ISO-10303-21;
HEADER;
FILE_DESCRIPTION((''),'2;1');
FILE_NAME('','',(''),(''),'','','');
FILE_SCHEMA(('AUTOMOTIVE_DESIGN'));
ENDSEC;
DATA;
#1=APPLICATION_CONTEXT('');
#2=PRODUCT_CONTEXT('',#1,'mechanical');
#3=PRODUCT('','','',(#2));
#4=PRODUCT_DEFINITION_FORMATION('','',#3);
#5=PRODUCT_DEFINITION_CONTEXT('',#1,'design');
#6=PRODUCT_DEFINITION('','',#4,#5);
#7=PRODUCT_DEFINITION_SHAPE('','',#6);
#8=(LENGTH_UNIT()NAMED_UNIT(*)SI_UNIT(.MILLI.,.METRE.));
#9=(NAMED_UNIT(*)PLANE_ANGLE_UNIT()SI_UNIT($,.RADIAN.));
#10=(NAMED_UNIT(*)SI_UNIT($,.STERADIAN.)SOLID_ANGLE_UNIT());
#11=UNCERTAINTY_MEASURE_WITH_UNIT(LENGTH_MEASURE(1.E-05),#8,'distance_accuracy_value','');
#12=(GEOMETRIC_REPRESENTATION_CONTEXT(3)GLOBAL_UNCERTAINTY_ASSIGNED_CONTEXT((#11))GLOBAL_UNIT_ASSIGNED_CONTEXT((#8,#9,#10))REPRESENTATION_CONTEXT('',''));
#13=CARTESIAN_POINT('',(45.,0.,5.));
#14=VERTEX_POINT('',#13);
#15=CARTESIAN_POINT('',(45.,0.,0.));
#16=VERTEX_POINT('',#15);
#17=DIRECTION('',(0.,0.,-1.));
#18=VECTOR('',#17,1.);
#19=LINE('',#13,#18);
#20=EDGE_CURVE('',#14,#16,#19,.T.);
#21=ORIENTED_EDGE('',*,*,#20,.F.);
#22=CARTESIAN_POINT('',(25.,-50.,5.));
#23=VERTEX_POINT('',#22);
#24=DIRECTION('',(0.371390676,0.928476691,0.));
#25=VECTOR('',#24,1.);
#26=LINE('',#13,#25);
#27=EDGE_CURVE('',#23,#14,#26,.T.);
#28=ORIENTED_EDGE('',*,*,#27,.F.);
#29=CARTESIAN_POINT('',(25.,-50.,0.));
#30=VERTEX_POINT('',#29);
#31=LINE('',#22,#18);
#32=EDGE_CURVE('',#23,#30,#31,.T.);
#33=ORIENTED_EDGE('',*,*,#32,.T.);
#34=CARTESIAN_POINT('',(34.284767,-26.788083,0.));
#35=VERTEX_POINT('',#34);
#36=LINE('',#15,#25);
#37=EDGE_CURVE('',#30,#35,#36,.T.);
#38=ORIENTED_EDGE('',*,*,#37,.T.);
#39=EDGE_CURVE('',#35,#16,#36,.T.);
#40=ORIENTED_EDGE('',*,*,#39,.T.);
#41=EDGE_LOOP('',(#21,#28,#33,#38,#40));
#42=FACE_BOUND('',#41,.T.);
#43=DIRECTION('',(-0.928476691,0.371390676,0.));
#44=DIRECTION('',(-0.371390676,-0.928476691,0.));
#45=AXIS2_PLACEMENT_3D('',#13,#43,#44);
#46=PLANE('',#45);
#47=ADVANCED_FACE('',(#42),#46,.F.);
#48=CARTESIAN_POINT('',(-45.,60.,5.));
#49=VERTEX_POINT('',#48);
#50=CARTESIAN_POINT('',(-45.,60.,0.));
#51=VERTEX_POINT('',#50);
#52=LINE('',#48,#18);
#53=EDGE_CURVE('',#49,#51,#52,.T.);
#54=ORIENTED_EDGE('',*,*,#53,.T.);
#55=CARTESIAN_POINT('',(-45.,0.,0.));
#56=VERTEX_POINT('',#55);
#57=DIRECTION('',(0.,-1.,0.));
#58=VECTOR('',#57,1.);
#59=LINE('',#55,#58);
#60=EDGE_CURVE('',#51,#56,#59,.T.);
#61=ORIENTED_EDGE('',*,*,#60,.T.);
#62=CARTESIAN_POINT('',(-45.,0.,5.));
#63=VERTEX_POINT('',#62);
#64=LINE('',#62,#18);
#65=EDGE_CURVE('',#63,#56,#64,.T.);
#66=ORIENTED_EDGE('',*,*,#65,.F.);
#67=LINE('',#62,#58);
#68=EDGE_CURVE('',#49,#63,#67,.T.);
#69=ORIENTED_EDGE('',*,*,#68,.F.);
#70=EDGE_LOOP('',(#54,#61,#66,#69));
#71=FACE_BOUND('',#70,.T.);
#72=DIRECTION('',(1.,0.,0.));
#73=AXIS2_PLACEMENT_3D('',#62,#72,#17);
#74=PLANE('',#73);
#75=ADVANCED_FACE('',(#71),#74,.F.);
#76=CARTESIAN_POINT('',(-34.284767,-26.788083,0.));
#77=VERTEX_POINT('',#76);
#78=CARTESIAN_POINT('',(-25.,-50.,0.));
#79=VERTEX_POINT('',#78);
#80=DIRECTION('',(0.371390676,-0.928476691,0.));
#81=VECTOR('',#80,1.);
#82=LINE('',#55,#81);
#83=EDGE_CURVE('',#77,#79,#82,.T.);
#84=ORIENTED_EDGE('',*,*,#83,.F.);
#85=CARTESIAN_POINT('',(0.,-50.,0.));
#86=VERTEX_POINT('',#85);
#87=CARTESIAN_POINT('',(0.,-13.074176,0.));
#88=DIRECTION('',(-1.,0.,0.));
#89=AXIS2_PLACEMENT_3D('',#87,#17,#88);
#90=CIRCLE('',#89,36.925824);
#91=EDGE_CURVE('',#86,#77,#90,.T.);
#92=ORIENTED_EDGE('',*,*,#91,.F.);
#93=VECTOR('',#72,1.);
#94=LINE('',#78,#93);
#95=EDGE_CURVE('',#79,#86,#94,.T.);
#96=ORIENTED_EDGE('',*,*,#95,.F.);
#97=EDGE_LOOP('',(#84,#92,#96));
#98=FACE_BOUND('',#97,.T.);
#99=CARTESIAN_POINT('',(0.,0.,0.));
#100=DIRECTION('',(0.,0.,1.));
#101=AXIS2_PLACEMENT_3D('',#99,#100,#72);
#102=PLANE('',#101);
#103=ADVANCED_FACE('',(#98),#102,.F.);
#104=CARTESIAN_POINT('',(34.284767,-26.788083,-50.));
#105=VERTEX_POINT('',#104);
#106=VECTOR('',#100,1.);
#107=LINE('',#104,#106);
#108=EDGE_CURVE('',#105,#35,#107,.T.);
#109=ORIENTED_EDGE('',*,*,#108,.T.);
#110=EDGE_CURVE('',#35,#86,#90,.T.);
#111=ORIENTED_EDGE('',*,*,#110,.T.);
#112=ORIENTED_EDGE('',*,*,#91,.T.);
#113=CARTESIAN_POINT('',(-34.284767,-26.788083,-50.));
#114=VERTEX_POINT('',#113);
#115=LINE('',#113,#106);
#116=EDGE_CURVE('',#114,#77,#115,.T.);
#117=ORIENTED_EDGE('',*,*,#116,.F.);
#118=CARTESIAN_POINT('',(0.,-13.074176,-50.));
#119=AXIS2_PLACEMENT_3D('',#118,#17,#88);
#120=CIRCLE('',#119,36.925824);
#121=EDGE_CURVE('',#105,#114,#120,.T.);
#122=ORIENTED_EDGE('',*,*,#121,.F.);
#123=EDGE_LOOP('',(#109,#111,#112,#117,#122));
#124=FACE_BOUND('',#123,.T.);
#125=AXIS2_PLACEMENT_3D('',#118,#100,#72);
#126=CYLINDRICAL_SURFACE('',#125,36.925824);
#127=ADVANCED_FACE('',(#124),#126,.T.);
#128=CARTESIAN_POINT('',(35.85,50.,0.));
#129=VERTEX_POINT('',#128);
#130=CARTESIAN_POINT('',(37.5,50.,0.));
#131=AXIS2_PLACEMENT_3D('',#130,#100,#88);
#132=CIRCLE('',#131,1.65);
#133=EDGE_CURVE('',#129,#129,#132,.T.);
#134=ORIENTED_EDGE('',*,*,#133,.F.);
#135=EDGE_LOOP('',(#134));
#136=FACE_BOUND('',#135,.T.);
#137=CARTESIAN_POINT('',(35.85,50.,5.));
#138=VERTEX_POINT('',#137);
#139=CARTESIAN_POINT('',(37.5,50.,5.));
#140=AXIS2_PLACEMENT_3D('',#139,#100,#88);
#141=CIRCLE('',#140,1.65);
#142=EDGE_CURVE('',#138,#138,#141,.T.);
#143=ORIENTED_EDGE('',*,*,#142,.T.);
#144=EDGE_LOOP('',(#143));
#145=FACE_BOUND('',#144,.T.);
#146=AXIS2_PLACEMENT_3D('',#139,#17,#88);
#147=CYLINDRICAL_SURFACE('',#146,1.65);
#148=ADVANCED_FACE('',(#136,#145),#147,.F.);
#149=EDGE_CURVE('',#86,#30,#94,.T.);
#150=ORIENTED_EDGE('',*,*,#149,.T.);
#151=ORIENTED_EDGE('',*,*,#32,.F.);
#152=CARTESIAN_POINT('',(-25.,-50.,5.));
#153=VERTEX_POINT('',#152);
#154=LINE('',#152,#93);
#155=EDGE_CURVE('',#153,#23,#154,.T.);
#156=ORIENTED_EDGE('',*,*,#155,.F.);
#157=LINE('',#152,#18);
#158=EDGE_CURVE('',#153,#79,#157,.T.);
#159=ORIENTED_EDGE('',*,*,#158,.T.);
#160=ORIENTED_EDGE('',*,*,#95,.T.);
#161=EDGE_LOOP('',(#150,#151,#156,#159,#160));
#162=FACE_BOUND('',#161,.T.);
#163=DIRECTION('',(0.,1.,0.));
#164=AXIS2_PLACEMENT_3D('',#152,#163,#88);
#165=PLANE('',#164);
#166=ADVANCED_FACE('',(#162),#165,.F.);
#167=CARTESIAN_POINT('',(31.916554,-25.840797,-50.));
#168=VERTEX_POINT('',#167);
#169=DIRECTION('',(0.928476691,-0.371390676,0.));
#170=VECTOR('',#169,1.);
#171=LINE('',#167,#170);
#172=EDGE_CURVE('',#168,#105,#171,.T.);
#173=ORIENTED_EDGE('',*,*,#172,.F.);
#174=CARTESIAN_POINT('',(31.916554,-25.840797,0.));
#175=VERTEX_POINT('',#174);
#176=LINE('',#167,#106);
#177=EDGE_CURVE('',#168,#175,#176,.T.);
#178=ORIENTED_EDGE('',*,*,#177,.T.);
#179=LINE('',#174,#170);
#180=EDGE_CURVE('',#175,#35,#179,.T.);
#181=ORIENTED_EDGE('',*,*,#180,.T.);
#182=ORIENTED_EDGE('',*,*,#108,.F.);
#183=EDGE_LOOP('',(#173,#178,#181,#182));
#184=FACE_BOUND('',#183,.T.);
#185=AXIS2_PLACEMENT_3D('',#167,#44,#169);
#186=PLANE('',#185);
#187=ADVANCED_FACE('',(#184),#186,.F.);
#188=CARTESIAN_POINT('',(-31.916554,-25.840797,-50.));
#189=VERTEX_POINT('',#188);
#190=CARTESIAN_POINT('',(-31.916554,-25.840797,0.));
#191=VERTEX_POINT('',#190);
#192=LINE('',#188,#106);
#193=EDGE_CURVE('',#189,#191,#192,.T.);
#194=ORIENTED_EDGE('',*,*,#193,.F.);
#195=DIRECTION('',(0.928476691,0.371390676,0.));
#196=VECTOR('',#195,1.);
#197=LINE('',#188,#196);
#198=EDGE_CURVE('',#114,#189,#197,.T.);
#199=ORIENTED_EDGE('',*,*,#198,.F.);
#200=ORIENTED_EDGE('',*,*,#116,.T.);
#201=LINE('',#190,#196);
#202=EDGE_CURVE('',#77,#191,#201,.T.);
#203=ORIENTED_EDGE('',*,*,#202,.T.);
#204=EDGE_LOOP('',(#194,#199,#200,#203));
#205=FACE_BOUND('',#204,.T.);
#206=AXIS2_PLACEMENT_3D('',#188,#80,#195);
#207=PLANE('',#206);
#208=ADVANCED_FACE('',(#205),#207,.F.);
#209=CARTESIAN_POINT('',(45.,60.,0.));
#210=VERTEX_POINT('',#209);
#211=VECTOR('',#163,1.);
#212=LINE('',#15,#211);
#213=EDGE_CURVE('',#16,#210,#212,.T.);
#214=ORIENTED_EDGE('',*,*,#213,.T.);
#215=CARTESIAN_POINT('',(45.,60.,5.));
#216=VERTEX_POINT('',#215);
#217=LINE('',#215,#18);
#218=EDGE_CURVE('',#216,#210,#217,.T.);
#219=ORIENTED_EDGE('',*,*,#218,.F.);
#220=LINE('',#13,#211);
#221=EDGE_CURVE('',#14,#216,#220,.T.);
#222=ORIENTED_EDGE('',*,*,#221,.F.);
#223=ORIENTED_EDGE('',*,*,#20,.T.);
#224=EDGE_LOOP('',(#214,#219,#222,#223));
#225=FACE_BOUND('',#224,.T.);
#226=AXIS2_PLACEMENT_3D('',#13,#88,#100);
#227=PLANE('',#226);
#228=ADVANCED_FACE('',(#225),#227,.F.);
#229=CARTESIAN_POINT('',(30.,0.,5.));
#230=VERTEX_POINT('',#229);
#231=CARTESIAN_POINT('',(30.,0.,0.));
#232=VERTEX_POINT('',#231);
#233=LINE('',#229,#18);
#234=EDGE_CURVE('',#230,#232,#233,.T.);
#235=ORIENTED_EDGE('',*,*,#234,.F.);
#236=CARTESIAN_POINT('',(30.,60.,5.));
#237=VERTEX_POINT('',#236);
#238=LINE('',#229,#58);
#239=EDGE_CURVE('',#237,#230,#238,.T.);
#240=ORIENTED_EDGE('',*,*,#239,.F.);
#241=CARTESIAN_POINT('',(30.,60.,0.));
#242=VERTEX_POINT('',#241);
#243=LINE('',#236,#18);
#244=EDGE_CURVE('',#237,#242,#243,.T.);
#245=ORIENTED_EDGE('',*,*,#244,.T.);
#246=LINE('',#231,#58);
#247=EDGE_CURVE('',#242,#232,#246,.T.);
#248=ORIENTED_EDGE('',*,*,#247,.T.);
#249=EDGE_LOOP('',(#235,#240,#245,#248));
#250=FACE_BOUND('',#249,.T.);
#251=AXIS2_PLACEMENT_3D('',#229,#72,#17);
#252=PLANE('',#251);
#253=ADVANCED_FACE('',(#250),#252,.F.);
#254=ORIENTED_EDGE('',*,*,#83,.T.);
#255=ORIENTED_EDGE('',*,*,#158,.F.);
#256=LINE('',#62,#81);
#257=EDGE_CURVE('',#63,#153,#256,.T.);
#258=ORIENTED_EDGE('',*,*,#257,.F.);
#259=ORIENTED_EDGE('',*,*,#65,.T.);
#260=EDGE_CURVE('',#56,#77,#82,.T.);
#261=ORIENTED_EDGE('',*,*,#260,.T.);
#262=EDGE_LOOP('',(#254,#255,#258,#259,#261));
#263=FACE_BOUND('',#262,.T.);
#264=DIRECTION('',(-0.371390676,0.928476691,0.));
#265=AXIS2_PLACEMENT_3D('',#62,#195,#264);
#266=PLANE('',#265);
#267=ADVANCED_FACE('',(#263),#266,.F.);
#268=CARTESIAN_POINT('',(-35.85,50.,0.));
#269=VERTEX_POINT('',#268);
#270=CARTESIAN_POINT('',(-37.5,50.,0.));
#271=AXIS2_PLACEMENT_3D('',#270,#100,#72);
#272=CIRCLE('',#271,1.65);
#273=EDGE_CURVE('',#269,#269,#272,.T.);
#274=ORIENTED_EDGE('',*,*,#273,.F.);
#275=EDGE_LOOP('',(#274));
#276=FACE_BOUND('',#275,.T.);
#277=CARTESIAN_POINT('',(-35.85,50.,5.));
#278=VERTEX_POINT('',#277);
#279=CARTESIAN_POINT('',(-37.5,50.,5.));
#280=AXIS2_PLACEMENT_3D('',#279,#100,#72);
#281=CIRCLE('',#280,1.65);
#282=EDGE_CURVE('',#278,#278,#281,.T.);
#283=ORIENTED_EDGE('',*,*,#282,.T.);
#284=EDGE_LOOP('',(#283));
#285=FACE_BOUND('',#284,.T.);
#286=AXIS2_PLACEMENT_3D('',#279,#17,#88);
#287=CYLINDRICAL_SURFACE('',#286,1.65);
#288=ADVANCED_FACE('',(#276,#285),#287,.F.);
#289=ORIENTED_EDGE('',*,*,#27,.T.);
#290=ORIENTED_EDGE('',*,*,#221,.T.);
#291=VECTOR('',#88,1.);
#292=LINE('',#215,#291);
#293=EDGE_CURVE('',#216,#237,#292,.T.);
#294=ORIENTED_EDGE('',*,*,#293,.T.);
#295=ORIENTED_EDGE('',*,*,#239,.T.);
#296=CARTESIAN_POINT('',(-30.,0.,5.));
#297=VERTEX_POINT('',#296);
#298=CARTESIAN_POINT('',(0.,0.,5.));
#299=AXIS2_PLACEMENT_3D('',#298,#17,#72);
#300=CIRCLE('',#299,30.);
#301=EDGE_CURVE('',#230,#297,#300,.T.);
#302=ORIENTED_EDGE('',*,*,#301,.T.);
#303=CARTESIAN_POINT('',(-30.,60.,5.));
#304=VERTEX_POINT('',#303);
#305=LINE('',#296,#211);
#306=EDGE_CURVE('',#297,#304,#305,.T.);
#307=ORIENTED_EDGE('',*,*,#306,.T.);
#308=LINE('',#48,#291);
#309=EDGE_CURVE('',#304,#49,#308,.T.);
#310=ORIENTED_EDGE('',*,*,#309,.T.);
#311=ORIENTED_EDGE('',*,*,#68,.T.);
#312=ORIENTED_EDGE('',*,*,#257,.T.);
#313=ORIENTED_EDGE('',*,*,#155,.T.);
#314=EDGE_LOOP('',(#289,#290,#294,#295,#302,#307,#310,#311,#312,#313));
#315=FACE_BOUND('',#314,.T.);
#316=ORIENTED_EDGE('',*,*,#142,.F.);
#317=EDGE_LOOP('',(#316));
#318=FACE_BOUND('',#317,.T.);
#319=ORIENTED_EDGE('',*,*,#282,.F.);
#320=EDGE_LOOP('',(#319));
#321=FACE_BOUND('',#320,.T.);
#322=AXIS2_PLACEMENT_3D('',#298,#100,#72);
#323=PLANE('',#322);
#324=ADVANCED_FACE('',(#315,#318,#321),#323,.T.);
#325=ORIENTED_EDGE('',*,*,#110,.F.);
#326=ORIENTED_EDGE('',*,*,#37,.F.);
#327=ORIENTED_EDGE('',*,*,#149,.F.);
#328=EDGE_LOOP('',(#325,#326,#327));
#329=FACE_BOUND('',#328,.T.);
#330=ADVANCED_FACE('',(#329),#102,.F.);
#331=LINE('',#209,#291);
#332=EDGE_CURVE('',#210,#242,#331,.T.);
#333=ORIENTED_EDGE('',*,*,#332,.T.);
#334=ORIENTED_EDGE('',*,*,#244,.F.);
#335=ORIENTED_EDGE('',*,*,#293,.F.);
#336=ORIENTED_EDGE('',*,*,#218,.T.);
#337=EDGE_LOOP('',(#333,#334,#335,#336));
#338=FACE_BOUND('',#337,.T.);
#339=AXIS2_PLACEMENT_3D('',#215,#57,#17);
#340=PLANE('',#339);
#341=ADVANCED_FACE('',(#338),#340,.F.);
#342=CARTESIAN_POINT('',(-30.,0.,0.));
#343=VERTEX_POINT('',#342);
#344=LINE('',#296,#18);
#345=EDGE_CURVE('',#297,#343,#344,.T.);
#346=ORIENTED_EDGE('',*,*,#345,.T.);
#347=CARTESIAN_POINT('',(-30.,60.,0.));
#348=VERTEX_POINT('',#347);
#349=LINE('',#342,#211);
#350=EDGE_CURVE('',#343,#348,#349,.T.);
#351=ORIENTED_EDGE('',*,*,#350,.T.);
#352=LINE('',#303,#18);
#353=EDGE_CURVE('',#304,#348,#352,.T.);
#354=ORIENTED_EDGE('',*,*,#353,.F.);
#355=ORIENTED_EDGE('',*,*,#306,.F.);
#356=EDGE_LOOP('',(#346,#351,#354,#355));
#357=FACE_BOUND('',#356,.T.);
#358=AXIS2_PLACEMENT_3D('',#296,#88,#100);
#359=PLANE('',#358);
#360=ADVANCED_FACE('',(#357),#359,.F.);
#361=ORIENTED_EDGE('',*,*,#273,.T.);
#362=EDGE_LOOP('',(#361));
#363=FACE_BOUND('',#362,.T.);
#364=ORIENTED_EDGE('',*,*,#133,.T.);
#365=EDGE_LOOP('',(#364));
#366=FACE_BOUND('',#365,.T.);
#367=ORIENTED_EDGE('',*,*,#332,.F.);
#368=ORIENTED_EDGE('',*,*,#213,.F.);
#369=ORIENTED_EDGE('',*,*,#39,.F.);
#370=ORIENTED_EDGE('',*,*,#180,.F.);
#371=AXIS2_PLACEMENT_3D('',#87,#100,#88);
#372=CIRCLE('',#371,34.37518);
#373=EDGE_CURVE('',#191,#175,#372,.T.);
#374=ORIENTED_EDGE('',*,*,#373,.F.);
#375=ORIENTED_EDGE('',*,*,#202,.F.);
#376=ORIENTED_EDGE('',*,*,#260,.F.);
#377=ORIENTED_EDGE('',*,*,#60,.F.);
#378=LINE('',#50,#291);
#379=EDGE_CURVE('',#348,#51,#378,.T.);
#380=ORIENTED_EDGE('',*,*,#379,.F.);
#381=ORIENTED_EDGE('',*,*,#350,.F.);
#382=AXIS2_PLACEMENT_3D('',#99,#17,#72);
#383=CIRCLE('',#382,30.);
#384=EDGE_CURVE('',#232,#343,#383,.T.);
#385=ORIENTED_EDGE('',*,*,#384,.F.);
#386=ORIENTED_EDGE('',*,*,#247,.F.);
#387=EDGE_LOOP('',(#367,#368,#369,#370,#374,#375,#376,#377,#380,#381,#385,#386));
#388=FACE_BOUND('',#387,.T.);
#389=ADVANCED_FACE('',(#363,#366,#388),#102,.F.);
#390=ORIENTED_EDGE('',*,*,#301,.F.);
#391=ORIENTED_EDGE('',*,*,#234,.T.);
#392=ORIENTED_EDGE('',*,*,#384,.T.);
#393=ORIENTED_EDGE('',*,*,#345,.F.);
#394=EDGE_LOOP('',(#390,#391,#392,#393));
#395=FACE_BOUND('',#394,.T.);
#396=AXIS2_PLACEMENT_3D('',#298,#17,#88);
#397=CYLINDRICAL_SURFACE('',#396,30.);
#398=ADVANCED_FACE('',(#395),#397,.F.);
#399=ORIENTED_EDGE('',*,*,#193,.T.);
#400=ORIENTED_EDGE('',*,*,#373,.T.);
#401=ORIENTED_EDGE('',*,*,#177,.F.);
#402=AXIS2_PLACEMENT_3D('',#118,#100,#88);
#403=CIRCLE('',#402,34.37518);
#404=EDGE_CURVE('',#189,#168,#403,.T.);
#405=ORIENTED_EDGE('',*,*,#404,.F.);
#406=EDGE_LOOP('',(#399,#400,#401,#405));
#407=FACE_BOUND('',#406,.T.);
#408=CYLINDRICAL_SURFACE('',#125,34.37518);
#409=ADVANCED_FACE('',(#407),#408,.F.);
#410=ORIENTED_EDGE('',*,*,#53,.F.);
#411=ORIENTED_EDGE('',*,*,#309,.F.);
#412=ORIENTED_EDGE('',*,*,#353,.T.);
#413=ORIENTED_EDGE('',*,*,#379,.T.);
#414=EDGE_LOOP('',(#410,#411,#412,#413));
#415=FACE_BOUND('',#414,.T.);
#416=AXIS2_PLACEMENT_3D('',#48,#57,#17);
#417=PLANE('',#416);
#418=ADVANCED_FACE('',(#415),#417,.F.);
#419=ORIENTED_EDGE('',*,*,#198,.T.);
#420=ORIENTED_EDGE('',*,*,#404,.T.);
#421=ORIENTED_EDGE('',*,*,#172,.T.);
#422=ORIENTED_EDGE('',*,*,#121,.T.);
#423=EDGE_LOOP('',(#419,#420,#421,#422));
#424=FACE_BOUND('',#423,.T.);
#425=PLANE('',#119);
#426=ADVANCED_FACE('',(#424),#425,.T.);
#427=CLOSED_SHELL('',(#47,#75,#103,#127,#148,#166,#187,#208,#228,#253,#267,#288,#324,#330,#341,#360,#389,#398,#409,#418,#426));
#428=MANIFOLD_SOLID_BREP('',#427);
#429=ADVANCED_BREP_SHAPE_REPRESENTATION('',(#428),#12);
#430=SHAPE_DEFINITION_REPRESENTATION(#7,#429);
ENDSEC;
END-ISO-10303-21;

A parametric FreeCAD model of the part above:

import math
import FreeCAD as App
import Part
import Sketcher

V = App.Vector

doc = App.newDocument("Part")
body = doc.addObject("PartDesign::Body", "Body")

sketch1 = body.newObject("Sketcher::SketchObject", "Sketch")
sketch1.AttachmentSupport = (doc.getObject("XY_Plane"), [""])
sketch1.MapMode = "FlatFace"
sketch1.addGeometry([
    Part.LineSegment(V(-25, -50, 0), V(25, -50, 0)),
    Part.LineSegment(V(25, -50, 0), V(45, 0, 0)),
    Part.LineSegment(V(45, 0, 0), V(45, 60, 0)),
    Part.LineSegment(V(45, 60, 0), V(30, 60, 0)),
    Part.LineSegment(V(30, 60, 0), V(30, 0, 0)),
    Part.ArcOfCircle(Part.Circle(V(0, 0, 0), V(0, 0, 1), 30), math.radians(180), math.radians(360)),
    Part.LineSegment(V(-30, 0, 0), V(-30, 60, 0)),
    Part.LineSegment(V(-30, 60, 0), V(-45, 60, 0)),
    Part.LineSegment(V(-45, 60, 0), V(-45, 0, 0)),
    Part.LineSegment(V(-45, 0, 0), V(-25, -50, 0)),
    Part.Circle(V(-37.5, 50, 0), V(0, 0, 1), 1.6),
    Part.Circle(V(37.5, 50, 0), V(0, 0, 1), 1.6),
], False)
sketch1.addConstraint([
    Sketcher.Constraint("Coincident", 0, 2, 1, 1),
    Sketcher.Constraint("Coincident", 1, 2, 2, 1),
    Sketcher.Constraint("Coincident", 2, 2, 3, 1),
    Sketcher.Constraint("Coincident", 3, 2, 4, 1),
    Sketcher.Constraint("Tangent", 4, 2, 5, 2),
    Sketcher.Constraint("Tangent", 5, 1, 6, 1),
    Sketcher.Constraint("Coincident", 6, 2, 7, 1),
    Sketcher.Constraint("Coincident", 7, 2, 8, 1),
    Sketcher.Constraint("Coincident", 8, 2, 9, 1),
    Sketcher.Constraint("Coincident", 9, 2, 0, 1),
    Sketcher.Constraint("Horizontal", 0),
    Sketcher.Constraint("Vertical", 2),
    Sketcher.Constraint("Horizontal", 3),
    Sketcher.Constraint("Vertical", 4),
    Sketcher.Constraint("Vertical", 6),
    Sketcher.Constraint("Horizontal", 7),
    Sketcher.Constraint("Vertical", 8),
    Sketcher.Constraint("Coincident", 5, 3, -1, 1),
    Sketcher.Constraint("Equal", 10, 11),
    Sketcher.Constraint("Symmetric", 1, 2, 8, 2, -1, 1),
    Sketcher.Constraint("Symmetric", 10, 3, 11, 3, -2),
    Sketcher.Constraint("PointOnObject", 1, 2, -1),
    Sketcher.Constraint("Horizontal", 3, 2, 6, 2),
    Sketcher.Constraint("Equal", 1, 9),
    Sketcher.Constraint("Radius", 5, 30.0),
    Sketcher.Constraint("Diameter", 10, 3.3),
    Sketcher.Constraint("DistanceX", 0, 1, 0, 2, 50.0),
    Sketcher.Constraint("DistanceX", 3, 2, 3, 1, 15.0),
    Sketcher.Constraint("DistanceY", 2, 1, 2, 2, 60.0),
    Sketcher.Constraint("DistanceY", -1, 1, 10, 3, 50.0),
    Sketcher.Constraint("DistanceY", 0, 2, -1, 1, 50.0),
    Sketcher.Constraint("DistanceX", 10, 3, 11, 3, 75.0),
])
pad1 = body.newObject("PartDesign::Pad", "Pad")
pad1.Profile = sketch1
pad1.Length = 5

sketch2 = body.newObject("Sketcher::SketchObject", "Sketch001")
sketch2.AttachmentSupport = (doc.getObject("XY_Plane"), [""])
sketch2.MapMode = "FlatFace"
sketch2.addGeometry([
    Part.LineSegment(V(31.9, -25.8, 0), V(34.3, -26.8, 0)),
    Part.ArcOfCircle(Part.Circle(V(0, -13.1, 0), V(0, 0, 1), 36.9), math.radians(-158), math.radians(-22)),
    Part.LineSegment(V(-34.3, -26.8, 0), V(-31.9, -25.8, 0)),
    Part.ArcOfCircle(Part.Circle(V(0, -13.1, 0), V(0, 0, 1), 34.4), math.radians(-158), math.radians(-22)),
], False)
sketch2.addConstraint([
    Sketcher.Constraint("Coincident", 0, 2, 1, 2),
    Sketcher.Constraint("Coincident", 1, 1, 2, 1),
    Sketcher.Constraint("Coincident", 2, 2, 3, 1),
    Sketcher.Constraint("Coincident", 3, 2, 0, 1),
    Sketcher.Constraint("Coincident", 3, 3, 1, 3),
    Sketcher.Constraint("Symmetric", 0, 2, 1, 1, -2),
    Sketcher.Constraint("Horizontal", 2, 2, 3, 2),
    Sketcher.Constraint("Radius", 3, 34.37518),
    Sketcher.Constraint("Radius", 1, 36.925824),
    Sketcher.Constraint("DistanceY", 2, 2, 3, 3, 12.766621),
    Sketcher.Constraint("DistanceX", 2, 2, 0, 2, 66.20132),
    Sketcher.Constraint("DistanceY", 1, 3, -1, 1, 13.074176),
])
pad2 = body.newObject("PartDesign::Pad", "Pad001")
pad2.Profile = sketch2
pad2.Length = 50
pad2.Reversed = True

doc.recompute()
